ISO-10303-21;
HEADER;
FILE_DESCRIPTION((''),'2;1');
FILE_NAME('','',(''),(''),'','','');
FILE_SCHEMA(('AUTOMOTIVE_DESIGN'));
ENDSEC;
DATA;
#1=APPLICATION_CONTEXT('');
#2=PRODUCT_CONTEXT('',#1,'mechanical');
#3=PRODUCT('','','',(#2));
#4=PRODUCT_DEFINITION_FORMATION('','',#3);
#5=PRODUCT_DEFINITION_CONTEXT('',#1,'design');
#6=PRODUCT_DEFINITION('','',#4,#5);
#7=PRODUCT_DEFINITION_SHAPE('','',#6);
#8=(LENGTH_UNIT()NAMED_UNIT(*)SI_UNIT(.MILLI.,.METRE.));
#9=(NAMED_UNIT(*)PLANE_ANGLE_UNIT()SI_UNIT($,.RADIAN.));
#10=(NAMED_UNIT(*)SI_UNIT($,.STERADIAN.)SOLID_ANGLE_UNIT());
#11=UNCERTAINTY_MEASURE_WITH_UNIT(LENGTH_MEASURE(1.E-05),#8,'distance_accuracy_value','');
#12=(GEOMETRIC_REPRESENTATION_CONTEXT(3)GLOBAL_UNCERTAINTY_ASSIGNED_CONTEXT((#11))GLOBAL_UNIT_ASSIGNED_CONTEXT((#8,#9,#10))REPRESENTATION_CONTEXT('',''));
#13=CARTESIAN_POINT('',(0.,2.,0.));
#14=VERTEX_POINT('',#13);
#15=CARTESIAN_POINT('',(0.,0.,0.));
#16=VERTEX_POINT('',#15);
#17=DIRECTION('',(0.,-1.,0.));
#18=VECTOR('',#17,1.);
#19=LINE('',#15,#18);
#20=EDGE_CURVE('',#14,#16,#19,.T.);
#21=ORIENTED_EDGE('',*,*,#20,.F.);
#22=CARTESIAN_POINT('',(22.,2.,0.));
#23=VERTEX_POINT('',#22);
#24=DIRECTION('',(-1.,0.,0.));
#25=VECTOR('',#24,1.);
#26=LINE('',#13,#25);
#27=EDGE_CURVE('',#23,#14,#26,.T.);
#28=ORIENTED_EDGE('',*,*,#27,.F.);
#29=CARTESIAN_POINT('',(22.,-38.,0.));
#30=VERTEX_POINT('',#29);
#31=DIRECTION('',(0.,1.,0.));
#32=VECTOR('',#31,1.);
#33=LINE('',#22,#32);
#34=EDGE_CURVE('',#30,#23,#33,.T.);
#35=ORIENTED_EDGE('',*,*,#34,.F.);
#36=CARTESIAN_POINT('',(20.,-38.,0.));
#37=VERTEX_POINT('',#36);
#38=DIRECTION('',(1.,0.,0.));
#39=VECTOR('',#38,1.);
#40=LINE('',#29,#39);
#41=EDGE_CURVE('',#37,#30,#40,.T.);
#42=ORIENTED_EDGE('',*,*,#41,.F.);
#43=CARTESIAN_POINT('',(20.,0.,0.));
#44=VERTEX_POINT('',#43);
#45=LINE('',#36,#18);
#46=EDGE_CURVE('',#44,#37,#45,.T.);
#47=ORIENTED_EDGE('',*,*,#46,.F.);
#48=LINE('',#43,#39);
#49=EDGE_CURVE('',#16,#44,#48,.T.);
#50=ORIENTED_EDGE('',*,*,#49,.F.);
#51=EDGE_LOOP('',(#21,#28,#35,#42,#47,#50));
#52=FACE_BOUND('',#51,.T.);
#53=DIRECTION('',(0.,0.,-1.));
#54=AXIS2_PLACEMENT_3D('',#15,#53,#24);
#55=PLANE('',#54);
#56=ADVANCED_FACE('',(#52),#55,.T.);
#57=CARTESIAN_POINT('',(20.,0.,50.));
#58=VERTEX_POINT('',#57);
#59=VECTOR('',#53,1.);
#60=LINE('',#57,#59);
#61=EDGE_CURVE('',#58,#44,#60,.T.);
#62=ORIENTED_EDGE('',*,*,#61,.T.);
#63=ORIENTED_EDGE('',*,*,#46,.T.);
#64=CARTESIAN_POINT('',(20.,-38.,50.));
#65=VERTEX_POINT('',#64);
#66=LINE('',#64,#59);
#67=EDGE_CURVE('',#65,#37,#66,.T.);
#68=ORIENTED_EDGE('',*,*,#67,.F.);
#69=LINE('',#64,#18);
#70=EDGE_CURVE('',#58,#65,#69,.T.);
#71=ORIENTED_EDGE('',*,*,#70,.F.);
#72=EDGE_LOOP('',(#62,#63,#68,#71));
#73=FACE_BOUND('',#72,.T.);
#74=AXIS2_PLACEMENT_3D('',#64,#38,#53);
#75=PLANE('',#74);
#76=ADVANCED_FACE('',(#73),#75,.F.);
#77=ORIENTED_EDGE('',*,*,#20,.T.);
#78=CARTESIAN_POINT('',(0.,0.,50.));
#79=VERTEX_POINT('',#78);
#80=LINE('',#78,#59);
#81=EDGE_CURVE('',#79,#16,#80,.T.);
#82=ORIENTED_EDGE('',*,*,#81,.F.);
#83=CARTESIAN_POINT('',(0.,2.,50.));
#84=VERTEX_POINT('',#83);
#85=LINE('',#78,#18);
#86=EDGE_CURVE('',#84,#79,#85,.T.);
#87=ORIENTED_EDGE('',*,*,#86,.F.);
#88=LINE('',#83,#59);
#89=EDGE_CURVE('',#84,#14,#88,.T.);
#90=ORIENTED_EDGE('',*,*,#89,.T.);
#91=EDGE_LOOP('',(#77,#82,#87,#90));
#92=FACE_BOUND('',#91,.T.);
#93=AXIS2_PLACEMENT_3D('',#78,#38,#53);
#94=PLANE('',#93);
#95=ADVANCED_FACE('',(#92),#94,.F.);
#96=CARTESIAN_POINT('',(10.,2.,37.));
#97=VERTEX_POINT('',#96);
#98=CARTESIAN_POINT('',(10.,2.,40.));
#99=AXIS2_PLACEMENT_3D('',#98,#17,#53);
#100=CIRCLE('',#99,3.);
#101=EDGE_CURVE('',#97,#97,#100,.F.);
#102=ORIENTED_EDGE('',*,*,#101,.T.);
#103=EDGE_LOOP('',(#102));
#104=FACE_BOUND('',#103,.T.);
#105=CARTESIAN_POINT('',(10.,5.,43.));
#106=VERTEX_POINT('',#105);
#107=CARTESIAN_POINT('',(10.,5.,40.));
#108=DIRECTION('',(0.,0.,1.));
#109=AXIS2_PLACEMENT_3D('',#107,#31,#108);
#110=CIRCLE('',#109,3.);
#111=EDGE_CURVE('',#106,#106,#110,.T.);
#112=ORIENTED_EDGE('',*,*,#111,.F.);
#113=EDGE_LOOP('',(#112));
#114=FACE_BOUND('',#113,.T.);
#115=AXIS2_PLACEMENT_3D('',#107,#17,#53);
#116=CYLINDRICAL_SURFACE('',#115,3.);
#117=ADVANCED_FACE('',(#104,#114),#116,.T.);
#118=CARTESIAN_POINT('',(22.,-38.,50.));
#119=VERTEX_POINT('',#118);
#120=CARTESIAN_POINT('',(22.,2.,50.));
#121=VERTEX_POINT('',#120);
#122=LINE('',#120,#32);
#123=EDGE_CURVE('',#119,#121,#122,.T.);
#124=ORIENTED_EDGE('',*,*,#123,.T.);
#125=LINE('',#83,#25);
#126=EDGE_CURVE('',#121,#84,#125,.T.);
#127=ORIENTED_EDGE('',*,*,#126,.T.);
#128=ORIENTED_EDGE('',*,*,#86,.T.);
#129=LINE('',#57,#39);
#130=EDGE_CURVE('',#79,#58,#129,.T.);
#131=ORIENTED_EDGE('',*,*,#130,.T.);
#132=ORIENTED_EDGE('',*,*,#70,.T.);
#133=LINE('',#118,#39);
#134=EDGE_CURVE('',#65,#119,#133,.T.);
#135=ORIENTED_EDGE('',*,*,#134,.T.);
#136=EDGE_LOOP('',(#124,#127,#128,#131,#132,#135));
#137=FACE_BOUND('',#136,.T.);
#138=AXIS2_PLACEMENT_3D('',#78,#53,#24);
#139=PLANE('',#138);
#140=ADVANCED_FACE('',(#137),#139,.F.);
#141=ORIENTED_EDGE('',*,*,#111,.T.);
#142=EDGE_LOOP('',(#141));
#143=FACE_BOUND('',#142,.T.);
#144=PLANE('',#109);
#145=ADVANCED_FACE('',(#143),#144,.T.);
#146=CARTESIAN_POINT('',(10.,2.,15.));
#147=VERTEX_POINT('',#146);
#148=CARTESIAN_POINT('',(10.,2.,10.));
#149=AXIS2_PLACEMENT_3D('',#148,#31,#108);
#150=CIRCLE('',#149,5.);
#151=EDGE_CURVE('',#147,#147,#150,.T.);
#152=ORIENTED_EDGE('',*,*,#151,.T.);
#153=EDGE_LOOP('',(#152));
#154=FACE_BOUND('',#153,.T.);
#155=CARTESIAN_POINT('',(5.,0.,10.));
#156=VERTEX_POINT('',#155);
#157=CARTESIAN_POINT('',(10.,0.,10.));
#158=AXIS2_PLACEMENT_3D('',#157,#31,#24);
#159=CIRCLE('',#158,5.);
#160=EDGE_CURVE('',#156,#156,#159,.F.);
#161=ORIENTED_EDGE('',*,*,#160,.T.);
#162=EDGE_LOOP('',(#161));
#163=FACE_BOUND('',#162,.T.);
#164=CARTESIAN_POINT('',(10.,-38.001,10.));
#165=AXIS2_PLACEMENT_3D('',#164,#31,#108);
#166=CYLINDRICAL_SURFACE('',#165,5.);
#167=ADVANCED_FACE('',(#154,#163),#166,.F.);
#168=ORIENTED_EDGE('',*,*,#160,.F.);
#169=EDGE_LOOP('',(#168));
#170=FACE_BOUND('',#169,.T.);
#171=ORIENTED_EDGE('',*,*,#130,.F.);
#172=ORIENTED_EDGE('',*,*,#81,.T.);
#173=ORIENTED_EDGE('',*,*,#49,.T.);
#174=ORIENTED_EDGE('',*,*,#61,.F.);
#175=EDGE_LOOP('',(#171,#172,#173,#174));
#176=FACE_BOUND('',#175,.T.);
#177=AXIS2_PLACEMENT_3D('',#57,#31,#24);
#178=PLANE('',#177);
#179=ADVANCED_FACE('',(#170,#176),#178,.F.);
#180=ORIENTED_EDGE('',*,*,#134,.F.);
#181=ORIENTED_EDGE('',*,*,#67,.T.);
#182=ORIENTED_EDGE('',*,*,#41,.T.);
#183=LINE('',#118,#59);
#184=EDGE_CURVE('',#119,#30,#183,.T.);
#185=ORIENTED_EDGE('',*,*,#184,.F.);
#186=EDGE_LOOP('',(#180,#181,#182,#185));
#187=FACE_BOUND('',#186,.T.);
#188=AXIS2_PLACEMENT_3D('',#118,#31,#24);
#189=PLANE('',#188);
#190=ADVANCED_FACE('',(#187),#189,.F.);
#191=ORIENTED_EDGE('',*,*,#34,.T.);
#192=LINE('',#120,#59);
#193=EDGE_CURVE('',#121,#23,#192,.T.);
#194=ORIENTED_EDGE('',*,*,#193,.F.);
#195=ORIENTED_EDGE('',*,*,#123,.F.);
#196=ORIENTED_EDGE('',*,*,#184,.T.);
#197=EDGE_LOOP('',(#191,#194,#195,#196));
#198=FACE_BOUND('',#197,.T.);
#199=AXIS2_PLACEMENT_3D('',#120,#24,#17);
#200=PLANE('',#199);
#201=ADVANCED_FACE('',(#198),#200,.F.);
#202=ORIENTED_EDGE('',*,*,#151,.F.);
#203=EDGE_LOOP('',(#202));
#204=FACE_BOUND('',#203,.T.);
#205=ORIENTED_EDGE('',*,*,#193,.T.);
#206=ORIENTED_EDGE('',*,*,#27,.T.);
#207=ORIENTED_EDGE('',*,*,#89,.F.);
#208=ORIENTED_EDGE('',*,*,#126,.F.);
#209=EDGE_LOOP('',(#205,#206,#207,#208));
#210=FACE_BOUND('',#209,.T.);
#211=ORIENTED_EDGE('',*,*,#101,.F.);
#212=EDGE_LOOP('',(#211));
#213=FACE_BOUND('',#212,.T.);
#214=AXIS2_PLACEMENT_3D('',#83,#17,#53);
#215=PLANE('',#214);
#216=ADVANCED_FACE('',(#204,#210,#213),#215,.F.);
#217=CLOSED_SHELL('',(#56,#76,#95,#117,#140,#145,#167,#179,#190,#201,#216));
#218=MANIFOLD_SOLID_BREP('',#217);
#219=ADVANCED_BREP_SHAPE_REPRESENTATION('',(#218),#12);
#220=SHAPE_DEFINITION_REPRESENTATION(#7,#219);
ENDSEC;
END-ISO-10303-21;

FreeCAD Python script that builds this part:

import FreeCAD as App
import Part
import Sketcher

V = App.Vector
Q = App.Units.Quantity

doc = App.newDocument("Part")
params = doc.addObject("Spreadsheet::Sheet", "Params")
for row, (alias, value) in enumerate([
    ("sketch1_width", "20 mm"),
    ("sketch1_width2", "2 mm"),
    ("sketch1_height", "38 mm"),
    ("pad1_length", "50 mm"),
    ("sketch2_diameter", "10 mm"),
    ("sketch3_diameter", "6 mm"),
    ("pad2_length", "3 mm"),
], start=1):
    params.set(f"A{row}", alias)
    params.set(f"B{row}", "=" + value)
    params.setAlias(f"B{row}", alias)

body = doc.addObject("PartDesign::Body", "Body")

sketch1 = body.newObject("Sketcher::SketchObject", "Sketch")
sketch1.AttachmentSupport = (doc.getObject("XY_Plane"), [""])
sketch1.MapMode = "FlatFace"
sketch1.addGeometry(Part.LineSegment(V(0, 2, 0), V(0, 0, 0)), False)
sketch1.addGeometry(Part.LineSegment(V(0, 0, 0), V(20, 0, 0)), False)
sketch1.addGeometry(Part.LineSegment(V(20, 0, 0), V(20, -38, 0)), False)
sketch1.addGeometry(Part.LineSegment(V(20, -38, 0), V(22, -38, 0)), False)
sketch1.addGeometry(Part.LineSegment(V(22, -38, 0), V(22, 2, 0)), False)
sketch1.addGeometry(Part.LineSegment(V(22, 2, 0), V(0, 2, 0)), False)
sketch1.addConstraint(Sketcher.Constraint("Coincident", 0, 2, 1, 1))
sketch1.addConstraint(Sketcher.Constraint("Coincident", 1, 2, 2, 1))
sketch1.addConstraint(Sketcher.Constraint("Coincident", 2, 2, 3, 1))
sketch1.addConstraint(Sketcher.Constraint("Coincident", 3, 2, 4, 1))
sketch1.addConstraint(Sketcher.Constraint("Coincident", 4, 2, 5, 1))
sketch1.addConstraint(Sketcher.Constraint("Coincident", 5, 2, 0, 1))
sketch1.addConstraint(Sketcher.Constraint("Vertical", 0))
sketch1.addConstraint(Sketcher.Constraint("Horizontal", 1))
sketch1.addConstraint(Sketcher.Constraint("Vertical", 2))
sketch1.addConstraint(Sketcher.Constraint("Horizontal", 3))
sketch1.addConstraint(Sketcher.Constraint("Vertical", 4))
sketch1.addConstraint(Sketcher.Constraint("Horizontal", 5))
sketch1.addConstraint(Sketcher.Constraint("Coincident", 0, 2, -1, 1))
sketch1.addConstraint(Sketcher.Constraint("Equal", 3, 0))
sketch1.addConstraint(Sketcher.Constraint("DistanceX", 1, 1, 1, 2, Q("20 mm")))
sketch1.addConstraint(Sketcher.Constraint("DistanceX", 3, 1, 3, 2, Q("2 mm")))
sketch1.addConstraint(Sketcher.Constraint("DistanceY", 2, 2, 2, 1, Q("38 mm")))
sketch1.setExpression("Constraints[14]", "Params.sketch1_width")
sketch1.setExpression("Constraints[15]", "Params.sketch1_width2")
sketch1.setExpression("Constraints[16]", "Params.sketch1_height")
pad1 = body.newObject("PartDesign::Pad", "Pad")
pad1.Profile = sketch1
pad1.setExpression("Length", "Params.pad1_length")

sketch2 = body.newObject("Sketcher::SketchObject", "Sketch001")
sketch2.AttachmentSupport = (doc.getObject("XZ_Plane"), [""])
sketch2.MapMode = "FlatFace"
sketch2.AttachmentOffset = App.Placement(V(0, 0, -2), App.Rotation())
sketch2.addGeometry(Part.Circle(V(10, 10, 0), V(0, 0, 1), 5), False)
sketch2.addConstraint(Sketcher.Constraint("Diameter", 0, Q("10 mm")))
sketch2.addConstraint(Sketcher.Constraint("DistanceX", -1, 1, 0, 3, Q("10 mm")))
sketch2.addConstraint(Sketcher.Constraint("DistanceY", -1, 1, 0, 3, Q("10 mm")))
sketch2.setExpression("Constraints[0]", "Params.sketch2_diameter")
pocket1 = body.newObject("PartDesign::Pocket", "Pocket")
pocket1.Profile = sketch2
pocket1.Type = "UpToFirst"
pocket1.Reversed = True

sketch3 = body.newObject("Sketcher::SketchObject", "Sketch002")
sketch3.AttachmentSupport = (doc.getObject("XZ_Plane"), [""])
sketch3.MapMode = "FlatFace"
sketch3.AttachmentOffset = App.Placement(V(0, 0, -2), App.Rotation())
sketch3.addGeometry(Part.Circle(V(10, 40, 0), V(0, 0, 1), 3), False)
sketch3.addConstraint(Sketcher.Constraint("Diameter", 0, Q("6 mm")))
sketch3.addConstraint(Sketcher.Constraint("DistanceX", -1, 1, 0, 3, Q("10 mm")))
sketch3.addConstraint(Sketcher.Constraint("DistanceY", -1, 1, 0, 3, Q("40 mm")))
sketch3.setExpression("Constraints[0]", "Params.sketch3_diameter")
pad2 = body.newObject("PartDesign::Pad", "Pad001")
pad2.Profile = sketch3
pad2.setExpression("Length", "Params.pad2_length")
pad2.Reversed = True

doc.recompute()
